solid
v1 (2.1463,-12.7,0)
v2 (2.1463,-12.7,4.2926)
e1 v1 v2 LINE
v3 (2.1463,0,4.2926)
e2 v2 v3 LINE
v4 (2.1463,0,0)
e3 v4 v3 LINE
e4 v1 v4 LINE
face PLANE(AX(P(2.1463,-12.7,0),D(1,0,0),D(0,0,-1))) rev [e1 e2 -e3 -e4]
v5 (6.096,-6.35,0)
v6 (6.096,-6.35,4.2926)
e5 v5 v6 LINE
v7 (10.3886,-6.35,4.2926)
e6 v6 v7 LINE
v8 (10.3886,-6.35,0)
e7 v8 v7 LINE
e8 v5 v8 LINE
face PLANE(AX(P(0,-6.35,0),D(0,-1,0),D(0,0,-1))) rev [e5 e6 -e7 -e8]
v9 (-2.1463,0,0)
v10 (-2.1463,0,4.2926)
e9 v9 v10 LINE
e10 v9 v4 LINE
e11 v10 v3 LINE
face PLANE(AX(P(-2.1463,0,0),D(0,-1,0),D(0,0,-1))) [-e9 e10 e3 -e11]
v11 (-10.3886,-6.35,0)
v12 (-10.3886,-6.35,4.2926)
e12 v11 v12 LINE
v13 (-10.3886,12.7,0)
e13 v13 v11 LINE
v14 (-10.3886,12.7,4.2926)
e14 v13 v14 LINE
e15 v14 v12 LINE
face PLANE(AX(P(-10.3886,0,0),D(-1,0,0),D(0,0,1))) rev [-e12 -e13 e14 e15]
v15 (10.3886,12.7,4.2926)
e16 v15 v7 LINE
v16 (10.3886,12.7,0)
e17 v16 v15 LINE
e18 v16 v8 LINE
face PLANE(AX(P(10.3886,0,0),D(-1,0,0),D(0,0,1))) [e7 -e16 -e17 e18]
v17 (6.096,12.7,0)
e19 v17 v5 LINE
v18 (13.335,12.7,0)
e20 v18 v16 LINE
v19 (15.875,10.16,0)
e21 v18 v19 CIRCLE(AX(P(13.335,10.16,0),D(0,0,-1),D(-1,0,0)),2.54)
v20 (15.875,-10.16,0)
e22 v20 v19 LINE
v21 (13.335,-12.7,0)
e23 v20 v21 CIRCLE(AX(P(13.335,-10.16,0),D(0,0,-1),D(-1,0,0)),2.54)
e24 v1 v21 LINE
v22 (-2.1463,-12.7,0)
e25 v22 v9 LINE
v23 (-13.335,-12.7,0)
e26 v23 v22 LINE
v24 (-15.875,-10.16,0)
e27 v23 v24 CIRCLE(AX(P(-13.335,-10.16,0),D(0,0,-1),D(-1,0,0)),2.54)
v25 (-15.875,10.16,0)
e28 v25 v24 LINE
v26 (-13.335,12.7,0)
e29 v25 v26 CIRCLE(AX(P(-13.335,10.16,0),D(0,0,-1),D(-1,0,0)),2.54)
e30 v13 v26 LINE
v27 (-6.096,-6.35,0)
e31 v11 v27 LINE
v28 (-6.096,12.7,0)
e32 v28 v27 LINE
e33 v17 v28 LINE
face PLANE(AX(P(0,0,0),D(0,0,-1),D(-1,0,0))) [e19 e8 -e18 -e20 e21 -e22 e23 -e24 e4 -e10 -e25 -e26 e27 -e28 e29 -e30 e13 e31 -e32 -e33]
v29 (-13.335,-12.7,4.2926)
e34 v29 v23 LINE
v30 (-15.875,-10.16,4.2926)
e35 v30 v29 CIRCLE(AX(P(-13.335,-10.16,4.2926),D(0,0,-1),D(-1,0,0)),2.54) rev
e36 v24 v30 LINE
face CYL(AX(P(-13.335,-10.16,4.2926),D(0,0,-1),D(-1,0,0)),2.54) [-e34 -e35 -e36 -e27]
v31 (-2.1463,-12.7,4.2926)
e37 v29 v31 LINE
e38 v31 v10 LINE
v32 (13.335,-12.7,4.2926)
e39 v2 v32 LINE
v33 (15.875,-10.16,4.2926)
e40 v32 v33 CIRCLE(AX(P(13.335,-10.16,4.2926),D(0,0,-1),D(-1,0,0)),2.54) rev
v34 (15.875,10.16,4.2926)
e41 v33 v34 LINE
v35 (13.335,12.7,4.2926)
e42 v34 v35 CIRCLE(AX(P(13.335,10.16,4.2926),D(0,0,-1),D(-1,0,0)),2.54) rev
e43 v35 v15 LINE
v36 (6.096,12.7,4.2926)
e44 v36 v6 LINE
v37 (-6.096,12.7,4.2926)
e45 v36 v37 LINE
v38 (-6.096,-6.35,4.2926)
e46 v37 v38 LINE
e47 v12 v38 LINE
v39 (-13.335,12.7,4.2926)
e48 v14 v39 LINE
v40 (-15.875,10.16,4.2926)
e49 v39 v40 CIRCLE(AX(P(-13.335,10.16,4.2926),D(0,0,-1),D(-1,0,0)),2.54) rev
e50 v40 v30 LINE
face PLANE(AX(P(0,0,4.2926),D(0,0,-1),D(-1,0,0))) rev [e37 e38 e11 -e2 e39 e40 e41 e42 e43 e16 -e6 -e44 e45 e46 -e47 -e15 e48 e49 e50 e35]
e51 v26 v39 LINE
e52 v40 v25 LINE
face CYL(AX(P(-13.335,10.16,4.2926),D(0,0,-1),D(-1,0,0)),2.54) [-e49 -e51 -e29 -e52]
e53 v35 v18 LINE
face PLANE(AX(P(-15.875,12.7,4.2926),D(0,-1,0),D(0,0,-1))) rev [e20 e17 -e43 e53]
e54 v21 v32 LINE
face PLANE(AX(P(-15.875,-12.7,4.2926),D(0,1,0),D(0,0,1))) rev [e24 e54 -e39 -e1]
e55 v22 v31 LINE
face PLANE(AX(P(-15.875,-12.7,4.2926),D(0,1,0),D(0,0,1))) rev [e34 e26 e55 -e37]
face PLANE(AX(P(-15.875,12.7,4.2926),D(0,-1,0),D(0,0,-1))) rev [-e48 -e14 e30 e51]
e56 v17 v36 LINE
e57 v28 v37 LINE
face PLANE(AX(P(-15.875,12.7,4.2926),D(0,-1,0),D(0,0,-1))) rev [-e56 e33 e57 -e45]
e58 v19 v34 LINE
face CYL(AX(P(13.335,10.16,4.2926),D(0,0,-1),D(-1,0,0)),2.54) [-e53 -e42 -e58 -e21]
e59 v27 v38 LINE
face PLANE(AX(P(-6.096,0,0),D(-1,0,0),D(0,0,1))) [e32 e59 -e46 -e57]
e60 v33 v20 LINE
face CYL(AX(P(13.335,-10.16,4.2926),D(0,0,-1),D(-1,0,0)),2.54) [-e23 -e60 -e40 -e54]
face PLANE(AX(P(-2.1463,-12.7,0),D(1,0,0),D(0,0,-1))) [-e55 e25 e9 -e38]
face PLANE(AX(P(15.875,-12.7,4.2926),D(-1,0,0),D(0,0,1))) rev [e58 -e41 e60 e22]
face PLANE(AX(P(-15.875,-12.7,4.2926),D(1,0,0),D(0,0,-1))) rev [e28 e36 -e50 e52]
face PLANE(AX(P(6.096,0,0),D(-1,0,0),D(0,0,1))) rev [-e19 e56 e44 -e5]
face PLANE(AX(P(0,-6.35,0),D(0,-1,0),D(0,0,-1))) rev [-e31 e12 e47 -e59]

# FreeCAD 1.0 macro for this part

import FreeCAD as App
import Part
import Sketcher
from FreeCAD import Vector
Q = App.Units.Quantity


def edges_at(feature, points):
    """Names of the edges that pass closest to the given points."""
    edges = feature.Shape.Edges
    near = lambda p: min(range(len(edges)), key=lambda i: edges[i].distToShape(Part.Vertex(*p))[0])
    return sorted({f"Edge{near(p) + 1}" for p in points})

doc = App.newDocument("Part")
params = doc.addObject("Spreadsheet::Sheet", "Params")
for row, (alias, value) in enumerate([
    ("sketch1_height", "1 in"),
    ("sketch1_width", "1.25 in"),
    ("pad1_length", "0.169 in"),
    ("fillet_radius", "0.1 in"),
    ("sketch2_height", "0.5 in"),
    ("sketch2_height2", "0.75 in"),
    ("sketch2_width", "0.169 in"),
    ("pocket1_length", "0.169 in"),
], start=1):
    params.set(f"A{row}", alias)
    params.set(f"B{row}", "=" + value)
    params.setAlias(f"B{row}", alias)

body = doc.addObject("PartDesign::Body", "Body")

sketch1 = body.newObject("Sketcher::SketchObject", "Sketch")
sketch1.AttachmentSupport = (doc.getObject("XY_Plane"), [""])
sketch1.MapMode = "FlatFace"
sketch1.addGeometry(Part.LineSegment(Vector(-16, 13, 0), Vector(-16, -13, 0)), False)
sketch1.addGeometry(Part.LineSegment(Vector(-16, -13, 0), Vector(16, -13, 0)), False)
sketch1.addGeometry(Part.LineSegment(Vector(16, -13, 0), Vector(16, 13, 0)), False)
sketch1.addGeometry(Part.LineSegment(Vector(16, 13, 0), Vector(-16, 13, 0)), False)
sketch1.addConstraint(Sketcher.Constraint("Coincident", 0, 2, 1, 1))
sketch1.addConstraint(Sketcher.Constraint("Coincident", 1, 2, 2, 1))
sketch1.addConstraint(Sketcher.Constraint("Coincident", 2, 2, 3, 1))
sketch1.addConstraint(Sketcher.Constraint("Coincident", 3, 2, 0, 1))
sketch1.addConstraint(Sketcher.Constraint("Vertical", 0))
sketch1.addConstraint(Sketcher.Constraint("Horizontal", 1))
sketch1.addConstraint(Sketcher.Constraint("Vertical", 2))
sketch1.addConstraint(Sketcher.Constraint("Horizontal", 3))
sketch1.addConstraint(Sketcher.Constraint("Symmetric", 0, 2, 2, 2, -1, 1))
sketch1.addConstraint(Sketcher.Constraint("DistanceY", 0, 2, 0, 1, Q("1 in")))
sketch1.addConstraint(Sketcher.Constraint("DistanceX", 1, 1, 1, 2, Q("1.25 in")))
sketch1.setExpression("Constraints[9]", "Params.sketch1_height")
sketch1.setExpression("Constraints[10]", "Params.sketch1_width")
pad1 = body.newObject("PartDesign::Pad", "Pad")
pad1.Profile = sketch1
pad1.setExpression("Length", "Params.pad1_length")
doc.recompute()

fillet = body.newObject("PartDesign::Fillet", "Fillet")
fillet.Base = (pad1, edges_at(pad1, [
    (15.875, -12.7, 2.146),
    (-15.875, -12.7, 2.146),
    (-15.875, 12.7, 2.146),
    (15.875, 12.7, 2.146),
]))
fillet.setExpression("Radius", "Params.fillet_radius")

sketch2 = body.newObject("Sketcher::SketchObject", "Sketch001")
sketch2.AttachmentSupport = (doc.getObject("XY_Plane"), [""])
sketch2.MapMode = "FlatFace"
sketch2.AttachmentOffset = App.Placement(Vector(0, 0, 0.169 * 25.4), App.Rotation())
sketch2.addGeometry(Part.LineSegment(Vector(-10.4, 12.7, 0), Vector(-10.4, -6.3, 0)), False)
sketch2.addGeometry(Part.LineSegment(Vector(-10.4, -6.3, 0), Vector(-6.1, -6.3, 0)), False)
sketch2.addGeometry(Part.LineSegment(Vector(-6.1, -6.3, 0), Vector(-6.1, 12.7, 0)), False)
sketch2.addGeometry(Part.LineSegment(Vector(-6.1, 12.7, 0), Vector(-10.4, 12.7, 0)), False)
sketch2.addGeometry(Part.LineSegment(Vector(6.1, 12.7, 0), Vector(6.1, -6.3, 0)), False)
sketch2.addGeometry(Part.LineSegment(Vector(6.1, -6.3, 0), Vector(10.4, -6.3, 0)), False)
sketch2.addGeometry(Part.LineSegment(Vector(10.4, -6.3, 0), Vector(10.4, 12.7, 0)), False)
sketch2.addGeometry(Part.LineSegment(Vector(10.4, 12.7, 0), Vector(6.1, 12.7, 0)), False)
sketch2.addGeometry(Part.LineSegment(Vector(-2.1, 0, 0), Vector(-2.1, -12.7, 0)), False)
sketch2.addGeometry(Part.LineSegment(Vector(-2.1, -12.7, 0), Vector(2.1, -12.7, 0)), False)
sketch2.addGeometry(Part.LineSegment(Vector(2.1, -12.7, 0), Vector(2.1, 0, 0)), False)
sketch2.addGeometry(Part.LineSegment(Vector(2.1, 0, 0), Vector(-2.1, 0, 0)), False)
sketch2.addConstraint(Sketcher.Constraint("Coincident", 0, 2, 1, 1))
sketch2.addConstraint(Sketcher.Constraint("Coincident", 1, 2, 2, 1))
sketch2.addConstraint(Sketcher.Constraint("Coincident", 2, 2, 3, 1))
sketch2.addConstraint(Sketcher.Constraint("Coincident", 3, 2, 0, 1))
sketch2.addConstraint(Sketcher.Constraint("Coincident", 4, 2, 5, 1))
sketch2.addConstraint(Sketcher.Constraint("Coincident", 5, 2, 6, 1))
sketch2.addConstraint(Sketcher.Constraint("Coincident", 6, 2, 7, 1))
sketch2.addConstraint(Sketcher.Constraint("Coincident", 7, 2, 4, 1))
sketch2.addConstraint(Sketcher.Constraint("Coincident", 8, 2, 9, 1))
sketch2.addConstraint(Sketcher.Constraint("Coincident", 9, 2, 10, 1))
sketch2.addConstraint(Sketcher.Constraint("Coincident", 10, 2, 11, 1))
sketch2.addConstraint(Sketcher.Constraint("Coincident", 11, 2, 8, 1))
sketch2.addConstraint(Sketcher.Constraint("Vertical", 0))
sketch2.addConstraint(Sketcher.Constraint("Horizontal", 1))
sketch2.addConstraint(Sketcher.Constraint("Vertical", 2))
sketch2.addConstraint(Sketcher.Constraint("Horizontal", 3))
sketch2.addConstraint(Sketcher.Constraint("Vertical", 4))
sketch2.addConstraint(Sketcher.Constraint("Horizontal", 5))
sketch2.addConstraint(Sketcher.Constraint("Vertical", 6))
sketch2.addConstraint(Sketcher.Constraint("Horizontal", 7))
sketch2.addConstraint(Sketcher.Constraint("Vertical", 8))
sketch2.addConstraint(Sketcher.Constraint("Horizontal", 9))
sketch2.addConstraint(Sketcher.Constraint("Vertical", 10))
sketch2.addConstraint(Sketcher.Constraint("Horizontal", 11))
sketch2.addConstraint(Sketcher.Constraint("Symmetric", 10, 2, 11, 2, -1, 1))
sketch2.addConstraint(Sketcher.Constraint("Symmetric", 1, 2, 4, 2, -2))
sketch2.addConstraint(Sketcher.Constraint("Symmetric", 3, 2, 6, 2, -2))
sketch2.addConstraint(Sketcher.Constraint("Equal", 7, 9))
sketch2.addConstraint(Sketcher.Constraint("DistanceY", 8, 2, 8, 1, Q("0.5 in")))
sketch2.addConstraint(Sketcher.Constraint("DistanceY", 8, 2, 2, 2, Q("1 in")))
sketch2.addConstraint(Sketcher.Constraint("DistanceY", 0, 2, 0, 1, Q("0.75 in")))
sketch2.addConstraint(Sketcher.Constraint("DistanceX", 1, 1, 1, 2, Q("0.169 in")))
sketch2.addConstraint(Sketcher.Constraint("DistanceX", 1, 2, -1, 1, Q("0.24 in")))
sketch2.setExpression("Constraints[28]", "Params.sketch2_height")
sketch2.setExpression("Constraints[30]", "Params.sketch2_height2")
sketch2.setExpression("Constraints[31]", "Params.sketch2_width")
pocket1 = body.newObject("PartDesign::Pocket", "Pocket")
pocket1.Profile = sketch2
pocket1.setExpression("Length", "Params.pocket1_length")

doc.recompute()
